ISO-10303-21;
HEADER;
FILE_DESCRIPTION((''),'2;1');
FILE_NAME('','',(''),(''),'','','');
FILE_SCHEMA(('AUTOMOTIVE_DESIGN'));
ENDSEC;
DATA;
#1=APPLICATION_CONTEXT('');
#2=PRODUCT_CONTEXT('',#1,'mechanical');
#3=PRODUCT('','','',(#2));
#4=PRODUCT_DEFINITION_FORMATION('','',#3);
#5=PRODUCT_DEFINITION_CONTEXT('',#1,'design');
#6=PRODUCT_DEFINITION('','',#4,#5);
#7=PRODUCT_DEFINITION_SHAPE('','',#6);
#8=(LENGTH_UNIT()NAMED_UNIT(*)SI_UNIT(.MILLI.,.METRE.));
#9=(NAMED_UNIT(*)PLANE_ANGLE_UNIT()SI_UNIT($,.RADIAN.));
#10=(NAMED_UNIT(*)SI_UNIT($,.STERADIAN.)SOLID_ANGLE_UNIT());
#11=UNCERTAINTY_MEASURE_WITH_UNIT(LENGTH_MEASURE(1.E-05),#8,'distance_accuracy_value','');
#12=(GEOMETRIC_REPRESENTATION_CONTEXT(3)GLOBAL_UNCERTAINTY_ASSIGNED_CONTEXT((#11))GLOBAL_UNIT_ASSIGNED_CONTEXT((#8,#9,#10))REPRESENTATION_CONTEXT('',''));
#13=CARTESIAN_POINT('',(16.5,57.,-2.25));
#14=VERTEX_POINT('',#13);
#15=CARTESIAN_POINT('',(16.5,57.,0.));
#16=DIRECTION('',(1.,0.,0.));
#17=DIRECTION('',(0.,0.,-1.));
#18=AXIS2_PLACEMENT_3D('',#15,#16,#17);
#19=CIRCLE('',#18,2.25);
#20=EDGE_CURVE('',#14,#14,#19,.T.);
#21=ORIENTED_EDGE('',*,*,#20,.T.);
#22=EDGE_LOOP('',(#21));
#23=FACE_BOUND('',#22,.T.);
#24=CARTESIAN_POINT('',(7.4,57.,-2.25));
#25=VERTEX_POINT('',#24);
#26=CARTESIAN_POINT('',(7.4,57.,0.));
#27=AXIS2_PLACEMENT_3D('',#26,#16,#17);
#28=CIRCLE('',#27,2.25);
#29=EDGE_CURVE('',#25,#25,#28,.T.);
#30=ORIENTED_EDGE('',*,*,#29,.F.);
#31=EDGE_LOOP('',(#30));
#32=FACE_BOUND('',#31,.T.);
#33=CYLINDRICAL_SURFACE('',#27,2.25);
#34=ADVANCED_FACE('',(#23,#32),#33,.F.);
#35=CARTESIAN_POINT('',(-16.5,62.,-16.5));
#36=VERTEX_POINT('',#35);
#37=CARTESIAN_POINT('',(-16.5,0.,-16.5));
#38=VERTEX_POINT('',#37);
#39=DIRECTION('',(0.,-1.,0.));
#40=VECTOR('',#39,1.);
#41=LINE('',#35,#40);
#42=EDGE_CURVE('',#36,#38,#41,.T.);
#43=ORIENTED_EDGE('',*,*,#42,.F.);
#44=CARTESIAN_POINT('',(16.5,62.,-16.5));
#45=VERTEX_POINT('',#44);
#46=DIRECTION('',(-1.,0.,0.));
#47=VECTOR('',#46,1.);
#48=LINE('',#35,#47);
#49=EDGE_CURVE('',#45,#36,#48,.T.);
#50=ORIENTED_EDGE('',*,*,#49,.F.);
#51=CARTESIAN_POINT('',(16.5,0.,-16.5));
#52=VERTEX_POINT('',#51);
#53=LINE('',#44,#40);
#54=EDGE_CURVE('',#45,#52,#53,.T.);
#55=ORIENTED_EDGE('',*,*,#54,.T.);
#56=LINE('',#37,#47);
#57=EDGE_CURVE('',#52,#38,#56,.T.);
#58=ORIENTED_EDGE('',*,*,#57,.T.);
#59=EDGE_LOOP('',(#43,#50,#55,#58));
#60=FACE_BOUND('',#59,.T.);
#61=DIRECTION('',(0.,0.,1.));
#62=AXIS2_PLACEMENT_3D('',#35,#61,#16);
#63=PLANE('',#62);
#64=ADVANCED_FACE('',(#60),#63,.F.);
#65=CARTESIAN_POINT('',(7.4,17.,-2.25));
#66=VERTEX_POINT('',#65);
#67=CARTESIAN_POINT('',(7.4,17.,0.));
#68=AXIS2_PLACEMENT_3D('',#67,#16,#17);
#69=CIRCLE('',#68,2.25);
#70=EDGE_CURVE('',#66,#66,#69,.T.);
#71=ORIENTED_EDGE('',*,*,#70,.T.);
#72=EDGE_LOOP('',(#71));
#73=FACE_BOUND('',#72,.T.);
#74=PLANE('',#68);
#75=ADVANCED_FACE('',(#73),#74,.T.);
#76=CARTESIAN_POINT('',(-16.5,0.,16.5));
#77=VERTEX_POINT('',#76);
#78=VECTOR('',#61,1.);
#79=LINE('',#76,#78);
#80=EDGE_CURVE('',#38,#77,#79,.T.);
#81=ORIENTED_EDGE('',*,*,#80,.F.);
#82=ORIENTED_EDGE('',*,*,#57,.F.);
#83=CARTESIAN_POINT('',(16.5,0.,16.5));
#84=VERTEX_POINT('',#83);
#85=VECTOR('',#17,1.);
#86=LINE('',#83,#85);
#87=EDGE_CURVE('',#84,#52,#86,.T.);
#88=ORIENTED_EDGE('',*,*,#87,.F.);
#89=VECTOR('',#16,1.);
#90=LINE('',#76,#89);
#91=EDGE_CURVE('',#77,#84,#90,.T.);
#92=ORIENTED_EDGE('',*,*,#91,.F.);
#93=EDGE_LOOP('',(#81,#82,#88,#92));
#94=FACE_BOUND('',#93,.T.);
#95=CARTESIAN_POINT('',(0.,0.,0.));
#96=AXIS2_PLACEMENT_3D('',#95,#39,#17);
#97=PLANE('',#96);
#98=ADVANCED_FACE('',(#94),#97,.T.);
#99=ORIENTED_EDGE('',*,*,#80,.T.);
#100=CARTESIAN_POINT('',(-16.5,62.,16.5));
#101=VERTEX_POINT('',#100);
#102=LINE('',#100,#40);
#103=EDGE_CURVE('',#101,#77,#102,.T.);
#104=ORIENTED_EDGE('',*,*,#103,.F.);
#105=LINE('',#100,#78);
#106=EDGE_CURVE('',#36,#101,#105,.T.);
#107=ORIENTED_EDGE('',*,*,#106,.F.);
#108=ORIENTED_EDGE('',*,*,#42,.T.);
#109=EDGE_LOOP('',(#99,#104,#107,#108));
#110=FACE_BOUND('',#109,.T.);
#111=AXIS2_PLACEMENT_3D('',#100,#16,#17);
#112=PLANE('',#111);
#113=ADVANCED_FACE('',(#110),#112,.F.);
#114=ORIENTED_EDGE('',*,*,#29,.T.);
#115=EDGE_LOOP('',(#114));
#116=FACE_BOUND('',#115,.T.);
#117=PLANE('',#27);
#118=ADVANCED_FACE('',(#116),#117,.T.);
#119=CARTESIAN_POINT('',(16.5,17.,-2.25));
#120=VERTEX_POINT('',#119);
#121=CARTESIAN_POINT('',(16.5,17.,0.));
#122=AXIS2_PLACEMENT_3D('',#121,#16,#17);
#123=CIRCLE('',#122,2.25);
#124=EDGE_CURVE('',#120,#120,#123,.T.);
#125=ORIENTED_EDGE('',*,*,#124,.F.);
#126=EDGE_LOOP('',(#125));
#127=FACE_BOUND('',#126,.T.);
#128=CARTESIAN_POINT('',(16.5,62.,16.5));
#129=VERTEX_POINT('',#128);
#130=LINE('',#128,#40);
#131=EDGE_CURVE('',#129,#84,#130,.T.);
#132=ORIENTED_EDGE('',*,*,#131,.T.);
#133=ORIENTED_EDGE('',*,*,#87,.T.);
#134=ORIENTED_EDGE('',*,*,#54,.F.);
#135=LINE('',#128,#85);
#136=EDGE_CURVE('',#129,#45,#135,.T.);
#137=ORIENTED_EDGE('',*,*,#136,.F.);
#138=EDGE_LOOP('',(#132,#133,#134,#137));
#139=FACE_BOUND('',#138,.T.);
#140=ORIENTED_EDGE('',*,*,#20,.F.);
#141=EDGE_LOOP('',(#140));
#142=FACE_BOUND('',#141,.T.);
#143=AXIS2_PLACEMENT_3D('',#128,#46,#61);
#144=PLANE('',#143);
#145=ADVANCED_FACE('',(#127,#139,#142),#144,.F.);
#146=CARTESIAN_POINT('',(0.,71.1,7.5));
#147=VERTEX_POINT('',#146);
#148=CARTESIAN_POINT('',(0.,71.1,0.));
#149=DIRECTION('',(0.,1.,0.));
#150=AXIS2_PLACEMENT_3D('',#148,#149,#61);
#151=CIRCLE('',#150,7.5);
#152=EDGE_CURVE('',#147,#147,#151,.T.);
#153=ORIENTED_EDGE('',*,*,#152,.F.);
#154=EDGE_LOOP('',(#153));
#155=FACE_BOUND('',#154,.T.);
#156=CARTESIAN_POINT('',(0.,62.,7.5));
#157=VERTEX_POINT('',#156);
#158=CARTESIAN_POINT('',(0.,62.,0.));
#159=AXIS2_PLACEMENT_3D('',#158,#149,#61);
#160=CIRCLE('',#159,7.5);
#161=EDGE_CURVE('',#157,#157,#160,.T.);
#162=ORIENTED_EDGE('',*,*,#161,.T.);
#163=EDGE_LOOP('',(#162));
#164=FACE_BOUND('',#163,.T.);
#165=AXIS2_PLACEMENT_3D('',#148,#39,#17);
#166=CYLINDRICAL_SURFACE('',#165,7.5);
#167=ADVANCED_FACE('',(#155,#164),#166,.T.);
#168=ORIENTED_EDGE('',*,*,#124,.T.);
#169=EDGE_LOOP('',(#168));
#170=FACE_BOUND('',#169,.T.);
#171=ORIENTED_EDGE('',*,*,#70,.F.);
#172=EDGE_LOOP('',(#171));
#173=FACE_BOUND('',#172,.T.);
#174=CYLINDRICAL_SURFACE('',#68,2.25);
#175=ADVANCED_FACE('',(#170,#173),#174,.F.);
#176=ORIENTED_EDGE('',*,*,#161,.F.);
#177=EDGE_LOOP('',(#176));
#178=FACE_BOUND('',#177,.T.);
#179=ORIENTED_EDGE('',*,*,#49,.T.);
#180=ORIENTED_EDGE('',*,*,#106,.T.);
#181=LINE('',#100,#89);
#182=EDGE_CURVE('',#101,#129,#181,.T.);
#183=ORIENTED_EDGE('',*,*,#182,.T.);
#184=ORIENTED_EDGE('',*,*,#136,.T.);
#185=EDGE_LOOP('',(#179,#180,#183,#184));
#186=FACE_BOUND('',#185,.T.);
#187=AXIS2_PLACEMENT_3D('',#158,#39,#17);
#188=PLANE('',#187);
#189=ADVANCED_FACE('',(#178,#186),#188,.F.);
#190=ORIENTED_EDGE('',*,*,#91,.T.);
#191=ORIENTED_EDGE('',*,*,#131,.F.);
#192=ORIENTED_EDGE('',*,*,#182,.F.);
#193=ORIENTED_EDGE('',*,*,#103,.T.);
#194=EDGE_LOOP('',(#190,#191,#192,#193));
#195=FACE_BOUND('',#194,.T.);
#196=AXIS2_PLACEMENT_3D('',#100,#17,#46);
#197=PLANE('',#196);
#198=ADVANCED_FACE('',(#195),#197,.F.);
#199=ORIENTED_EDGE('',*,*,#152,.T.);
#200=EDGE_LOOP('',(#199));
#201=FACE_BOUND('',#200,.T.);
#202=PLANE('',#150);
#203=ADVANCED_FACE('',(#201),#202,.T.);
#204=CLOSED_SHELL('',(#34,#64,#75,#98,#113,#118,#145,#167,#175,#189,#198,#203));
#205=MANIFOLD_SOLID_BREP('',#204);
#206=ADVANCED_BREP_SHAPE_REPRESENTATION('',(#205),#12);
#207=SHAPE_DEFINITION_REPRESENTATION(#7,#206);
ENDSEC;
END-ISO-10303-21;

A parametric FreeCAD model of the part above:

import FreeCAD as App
import Part
import Sketcher
from FreeCAD import Vector


def add_polygon(sketch, points):
    """Adds a closed chain of lines whose ends are joined by coincident constraints."""
    first, n = sketch.GeometryCount, len(points)
    for a, b in zip(points, points[1:] + points[:1]):
        sketch.addGeometry(Part.LineSegment(App.Vector(*a, 0), App.Vector(*b, 0)), False)
    for i in range(n):
        sketch.addConstraint(Sketcher.Constraint("Coincident", first + i, 2, first + (i + 1) % n, 1))

doc = App.newDocument("Part")
params = doc.addObject("Spreadsheet::Sheet", "Params")
for row, (alias, value) in enumerate([
    ("sketch1_width", "33 mm"),
    ("pad1_length", "62 mm"),
    ("sketch2_diameter", "15 mm"),
    ("pad2_length", "9.1 mm"),
    ("sketch3_diameter", "4.5 mm"),
    ("pocket1_length", "9.1 mm"),
], start=1):
    params.set(f"A{row}", alias)
    params.set(f"B{row}", "=" + value)
    params.setAlias(f"B{row}", alias)

body = doc.addObject("PartDesign::Body", "Body")

# Sketch on XZ plane
sketch1 = doc.addObject("Sketcher::SketchObject", "Sketch")
body.addObject(sketch1)
sketch1.AttachmentSupport = (doc.XZ_Plane, [""])
sketch1.MapMode = "FlatFace"
add_polygon(sketch1, [(-16, -16), (-16, 16), (16, 16), (16, -16)])  # lines 0-3
sketch1.addConstraint([
    Sketcher.Constraint("Vertical", 0),
    Sketcher.Constraint("Horizontal", 1),
    Sketcher.Constraint("Vertical", 2),
    Sketcher.Constraint("Horizontal", 3),
    Sketcher.Constraint("Symmetric", 0, 2, 2, 2, -1, 1),
    Sketcher.Constraint("Equal", 3, 0),
    Sketcher.Constraint("DistanceX", 1, 1, 1, 2, 33.0),
])
sketch1.setExpression("Constraints[10]", "Params.sketch1_width")
pad1 = doc.addObject("PartDesign::Pad", "Pad")
body.addObject(pad1)
pad1.Profile = sketch1
pad1.setExpression("Length", "Params.pad1_length")
pad1.Reversed = True

# Sketch on XZ plane
sketch2 = doc.addObject("Sketcher::SketchObject", "Sketch001")
body.addObject(sketch2)
sketch2.AttachmentSupport = (doc.XZ_Plane, [""])
sketch2.MapMode = "FlatFace"
sketch2.AttachmentOffset = App.Placement(Vector(0, 0, -62), App.Rotation())
sketch2.addGeometry(Part.Circle(Vector(0, 0, 0), Vector(0, 0, 1), 8), False)
sketch2.addConstraint([
    Sketcher.Constraint("Coincident", 0, 3, -1, 1),
    Sketcher.Constraint("Diameter", 0, 15.0),
])
sketch2.setExpression("Constraints[1]", "Params.sketch2_diameter")
pad2 = doc.addObject("PartDesign::Pad", "Pad001")
body.addObject(pad2)
pad2.Profile = sketch2
pad2.setExpression("Length", "Params.pad2_length")
pad2.Reversed = True

# Sketch on YZ plane
sketch3 = doc.addObject("Sketcher::SketchObject", "Sketch002")
body.addObject(sketch3)
sketch3.AttachmentSupport = (doc.YZ_Plane, [""])
sketch3.MapMode = "FlatFace"
sketch3.AttachmentOffset = App.Placement(Vector(0, 0, 16.5), App.Rotation())
sketch3.addGeometry([
    Part.Circle(Vector(57, 0, 0), Vector(0, 0, 1), 2.2),
    Part.Circle(Vector(17, 0, 0), Vector(0, 0, 1), 2.2),
], False)
sketch3.addConstraint([
    Sketcher.Constraint("Equal", 0, 1),
    Sketcher.Constraint("PointOnObject", 0, 3, -1),
    Sketcher.Constraint("PointOnObject", 1, 3, -1),
    Sketcher.Constraint("Diameter", 0, 4.5),
    Sketcher.Constraint("DistanceX", -1, 1, 0, 3, 57.0),
    Sketcher.Constraint("DistanceX", -1, 1, 1, 3, 17.0),
])
sketch3.setExpression("Constraints[3]", "Params.sketch3_diameter")
pocket1 = doc.addObject("PartDesign::Pocket", "Pocket")
body.addObject(pocket1)
pocket1.Profile = sketch3
pocket1.setExpression("Length", "Params.pocket1_length")

doc.recompute()
